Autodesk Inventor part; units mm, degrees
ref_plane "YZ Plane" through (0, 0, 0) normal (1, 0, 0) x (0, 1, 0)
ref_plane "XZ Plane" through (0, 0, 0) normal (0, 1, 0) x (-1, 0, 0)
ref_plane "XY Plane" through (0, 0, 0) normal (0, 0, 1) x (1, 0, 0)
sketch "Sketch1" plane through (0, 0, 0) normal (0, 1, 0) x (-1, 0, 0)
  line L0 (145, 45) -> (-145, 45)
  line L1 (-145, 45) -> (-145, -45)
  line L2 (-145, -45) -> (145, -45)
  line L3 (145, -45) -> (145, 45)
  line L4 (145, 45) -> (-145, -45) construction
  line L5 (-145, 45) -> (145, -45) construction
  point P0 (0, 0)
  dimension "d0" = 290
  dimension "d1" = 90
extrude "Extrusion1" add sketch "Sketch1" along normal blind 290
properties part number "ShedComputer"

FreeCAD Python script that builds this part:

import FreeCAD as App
import Part
import Sketcher
from FreeCAD import Vector

doc = App.newDocument("Part")
body = doc.addObject("PartDesign::Body", "Body")

# Sketch on XZ plane
sketch1 = body.newObject("Sketcher::SketchObject", "Sketch")
sketch1.AttachmentSupport = (doc.getObject("XZ_Plane"), [""])
sketch1.MapMode = "FlatFace"
sketch1.addGeometry(Part.LineSegment(Vector(-145, -45, 0), Vector(-145, 45, 0)), False)
sketch1.addGeometry(Part.LineSegment(Vector(-145, 45, 0), Vector(145, 45, 0)), False)
sketch1.addGeometry(Part.LineSegment(Vector(145, 45, 0), Vector(145, -45, 0)), False)
sketch1.addGeometry(Part.LineSegment(Vector(145, -45, 0), Vector(-145, -45, 0)), False)
sketch1.addConstraint(Sketcher.Constraint("Coincident", 0, 2, 1, 1))
sketch1.addConstraint(Sketcher.Constraint("Coincident", 1, 2, 2, 1))
sketch1.addConstraint(Sketcher.Constraint("Coincident", 2, 2, 3, 1))
sketch1.addConstraint(Sketcher.Constraint("Coincident", 3, 2, 0, 1))
sketch1.addConstraint(Sketcher.Constraint("Vertical", 0))
sketch1.addConstraint(Sketcher.Constraint("Horizontal", 1))
sketch1.addConstraint(Sketcher.Constraint("Vertical", 2))
sketch1.addConstraint(Sketcher.Constraint("Horizontal", 3))
sketch1.addConstraint(Sketcher.Constraint("Symmetric", 0, 2, 2, 2, -1, 1))
sketch1.addConstraint(Sketcher.Constraint("DistanceX", 1, 1, 1, 2, 290.0))
sketch1.addConstraint(Sketcher.Constraint("DistanceY", 0, 1, 0, 2, 90.0))
pad1 = body.newObject("PartDesign::Pad", "Pad")
pad1.Profile = sketch1
pad1.Length = 290
pad1.Reversed = True

doc.recompute()
